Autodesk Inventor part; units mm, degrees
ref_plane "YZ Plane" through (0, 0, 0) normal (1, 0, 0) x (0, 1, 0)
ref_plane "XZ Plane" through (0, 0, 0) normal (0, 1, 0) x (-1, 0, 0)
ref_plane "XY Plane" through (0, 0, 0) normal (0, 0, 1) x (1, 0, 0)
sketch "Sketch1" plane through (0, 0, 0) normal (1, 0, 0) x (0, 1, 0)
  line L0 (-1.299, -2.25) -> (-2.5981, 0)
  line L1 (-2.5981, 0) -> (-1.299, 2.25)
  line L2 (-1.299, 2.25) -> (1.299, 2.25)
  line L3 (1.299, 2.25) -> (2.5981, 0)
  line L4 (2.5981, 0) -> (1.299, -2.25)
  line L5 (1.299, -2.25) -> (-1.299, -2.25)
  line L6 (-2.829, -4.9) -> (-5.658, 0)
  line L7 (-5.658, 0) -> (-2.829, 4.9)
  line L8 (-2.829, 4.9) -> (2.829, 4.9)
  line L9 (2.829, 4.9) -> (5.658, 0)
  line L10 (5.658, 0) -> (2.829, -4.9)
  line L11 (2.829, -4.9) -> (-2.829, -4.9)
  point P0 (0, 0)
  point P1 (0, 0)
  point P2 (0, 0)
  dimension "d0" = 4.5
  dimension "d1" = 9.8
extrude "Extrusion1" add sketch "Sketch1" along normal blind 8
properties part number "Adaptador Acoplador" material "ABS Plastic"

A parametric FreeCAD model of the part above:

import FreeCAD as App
import Part
import Sketcher
Q = App.Units.Quantity

doc = App.newDocument("Part")
body = doc.addObject("PartDesign::Body", "Body")

sketch1 = body.newObject("Sketcher::SketchObject", "Sketch")
sketch1.AttachmentSupport = (doc.getObject("YZ_Plane"), [""])
sketch1.MapMode = "FlatFace"
sketch1.addGeometry(Part.LineSegment(App.Vector(-5.7, 0, 0), App.Vector(-2.8, -4.9, 0)), False)
sketch1.addGeometry(Part.LineSegment(App.Vector(-2.8, -4.9, 0), App.Vector(2.8, -4.9, 0)), False)
sketch1.addGeometry(Part.LineSegment(App.Vector(2.8, -4.9, 0), App.Vector(5.7, 0, 0)), False)
sketch1.addGeometry(Part.LineSegment(App.Vector(5.7, 0, 0), App.Vector(2.8, 4.9, 0)), False)
sketch1.addGeometry(Part.LineSegment(App.Vector(2.8, 4.9, 0), App.Vector(-2.8, 4.9, 0)), False)
sketch1.addGeometry(Part.LineSegment(App.Vector(-2.8, 4.9, 0), App.Vector(-5.7, 0, 0)), False)
sketch1.addGeometry(Part.LineSegment(App.Vector(1.3, -2.2, 0), App.Vector(-1.3, -2.2, 0)), False)
sketch1.addGeometry(Part.LineSegment(App.Vector(-1.3, -2.2, 0), App.Vector(-2.6, 0, 0)), False)
sketch1.addGeometry(Part.LineSegment(App.Vector(-2.6, 0, 0), App.Vector(-1.3, 2.2, 0)), False)
sketch1.addGeometry(Part.LineSegment(App.Vector(-1.3, 2.2, 0), App.Vector(1.3, 2.2, 0)), False)
sketch1.addGeometry(Part.LineSegment(App.Vector(1.3, 2.2, 0), App.Vector(2.6, 0, 0)), False)
sketch1.addGeometry(Part.LineSegment(App.Vector(2.6, 0, 0), App.Vector(1.3, -2.2, 0)), False)
sketch1.addConstraint(Sketcher.Constraint("Coincident", 0, 2, 1, 1))
sketch1.addConstraint(Sketcher.Constraint("Coincident", 1, 2, 2, 1))
sketch1.addConstraint(Sketcher.Constraint("Coincident", 2, 2, 3, 1))
sketch1.addConstraint(Sketcher.Constraint("Coincident", 3, 2, 4, 1))
sketch1.addConstraint(Sketcher.Constraint("Coincident", 4, 2, 5, 1))
sketch1.addConstraint(Sketcher.Constraint("Coincident", 5, 2, 0, 1))
sketch1.addConstraint(Sketcher.Constraint("Coincident", 6, 2, 7, 1))
sketch1.addConstraint(Sketcher.Constraint("Coincident", 7, 2, 8, 1))
sketch1.addConstraint(Sketcher.Constraint("Coincident", 8, 2, 9, 1))
sketch1.addConstraint(Sketcher.Constraint("Coincident", 9, 2, 10, 1))
sketch1.addConstraint(Sketcher.Constraint("Coincident", 10, 2, 11, 1))
sketch1.addConstraint(Sketcher.Constraint("Coincident", 11, 2, 6, 1))
sketch1.addConstraint(Sketcher.Constraint("Horizontal", 1))
sketch1.addConstraint(Sketcher.Constraint("Horizontal", 4))
sketch1.addConstraint(Sketcher.Constraint("Horizontal", 6))
sketch1.addConstraint(Sketcher.Constraint("Horizontal", 9))
sketch1.addConstraint(Sketcher.Constraint("Symmetric", 0, 2, 3, 2, -1, 1))
sketch1.addConstraint(Sketcher.Constraint("Symmetric", 2, 2, 5, 2, -1, 1))
sketch1.addConstraint(Sketcher.Constraint("Symmetric", 6, 2, 9, 2, -1, 1))
sketch1.addConstraint(Sketcher.Constraint("Symmetric", 7, 2, 10, 2, -1, 1))
sketch1.addConstraint(Sketcher.Constraint("PointOnObject", 2, 2, -1))
sketch1.addConstraint(Sketcher.Constraint("PointOnObject", 7, 2, -1))
sketch1.addConstraint(Sketcher.Constraint("Parallel", 2, 5))
sketch1.addConstraint(Sketcher.Constraint("Parallel", 3, 7))
sketch1.addConstraint(Sketcher.Constraint("Parallel", 5, 8))
sketch1.addConstraint(Sketcher.Constraint("Parallel", 8, 11))
sketch1.addConstraint(Sketcher.Constraint("Vertical", 1, 2, 3, 2))
sketch1.addConstraint(Sketcher.Constraint("DistanceY", 1, 2, 3, 2, 9.8))
sketch1.addConstraint(Sketcher.Constraint("DistanceY", 6, 2, 8, 2, 4.5))
sketch1.addConstraint(Sketcher.Constraint("Angle", 0, Q("-60.0001 deg")))
sketch1.addConstraint(Sketcher.Constraint("DistanceX", 1, 1, 1, 2, 5.658))
sketch1.addConstraint(Sketcher.Constraint("DistanceX", 6, 2, 6, 1, 2.598))
pad1 = body.newObject("PartDesign::Pad", "Pad")
pad1.Profile = sketch1
pad1.Length = 8

doc.recompute()
